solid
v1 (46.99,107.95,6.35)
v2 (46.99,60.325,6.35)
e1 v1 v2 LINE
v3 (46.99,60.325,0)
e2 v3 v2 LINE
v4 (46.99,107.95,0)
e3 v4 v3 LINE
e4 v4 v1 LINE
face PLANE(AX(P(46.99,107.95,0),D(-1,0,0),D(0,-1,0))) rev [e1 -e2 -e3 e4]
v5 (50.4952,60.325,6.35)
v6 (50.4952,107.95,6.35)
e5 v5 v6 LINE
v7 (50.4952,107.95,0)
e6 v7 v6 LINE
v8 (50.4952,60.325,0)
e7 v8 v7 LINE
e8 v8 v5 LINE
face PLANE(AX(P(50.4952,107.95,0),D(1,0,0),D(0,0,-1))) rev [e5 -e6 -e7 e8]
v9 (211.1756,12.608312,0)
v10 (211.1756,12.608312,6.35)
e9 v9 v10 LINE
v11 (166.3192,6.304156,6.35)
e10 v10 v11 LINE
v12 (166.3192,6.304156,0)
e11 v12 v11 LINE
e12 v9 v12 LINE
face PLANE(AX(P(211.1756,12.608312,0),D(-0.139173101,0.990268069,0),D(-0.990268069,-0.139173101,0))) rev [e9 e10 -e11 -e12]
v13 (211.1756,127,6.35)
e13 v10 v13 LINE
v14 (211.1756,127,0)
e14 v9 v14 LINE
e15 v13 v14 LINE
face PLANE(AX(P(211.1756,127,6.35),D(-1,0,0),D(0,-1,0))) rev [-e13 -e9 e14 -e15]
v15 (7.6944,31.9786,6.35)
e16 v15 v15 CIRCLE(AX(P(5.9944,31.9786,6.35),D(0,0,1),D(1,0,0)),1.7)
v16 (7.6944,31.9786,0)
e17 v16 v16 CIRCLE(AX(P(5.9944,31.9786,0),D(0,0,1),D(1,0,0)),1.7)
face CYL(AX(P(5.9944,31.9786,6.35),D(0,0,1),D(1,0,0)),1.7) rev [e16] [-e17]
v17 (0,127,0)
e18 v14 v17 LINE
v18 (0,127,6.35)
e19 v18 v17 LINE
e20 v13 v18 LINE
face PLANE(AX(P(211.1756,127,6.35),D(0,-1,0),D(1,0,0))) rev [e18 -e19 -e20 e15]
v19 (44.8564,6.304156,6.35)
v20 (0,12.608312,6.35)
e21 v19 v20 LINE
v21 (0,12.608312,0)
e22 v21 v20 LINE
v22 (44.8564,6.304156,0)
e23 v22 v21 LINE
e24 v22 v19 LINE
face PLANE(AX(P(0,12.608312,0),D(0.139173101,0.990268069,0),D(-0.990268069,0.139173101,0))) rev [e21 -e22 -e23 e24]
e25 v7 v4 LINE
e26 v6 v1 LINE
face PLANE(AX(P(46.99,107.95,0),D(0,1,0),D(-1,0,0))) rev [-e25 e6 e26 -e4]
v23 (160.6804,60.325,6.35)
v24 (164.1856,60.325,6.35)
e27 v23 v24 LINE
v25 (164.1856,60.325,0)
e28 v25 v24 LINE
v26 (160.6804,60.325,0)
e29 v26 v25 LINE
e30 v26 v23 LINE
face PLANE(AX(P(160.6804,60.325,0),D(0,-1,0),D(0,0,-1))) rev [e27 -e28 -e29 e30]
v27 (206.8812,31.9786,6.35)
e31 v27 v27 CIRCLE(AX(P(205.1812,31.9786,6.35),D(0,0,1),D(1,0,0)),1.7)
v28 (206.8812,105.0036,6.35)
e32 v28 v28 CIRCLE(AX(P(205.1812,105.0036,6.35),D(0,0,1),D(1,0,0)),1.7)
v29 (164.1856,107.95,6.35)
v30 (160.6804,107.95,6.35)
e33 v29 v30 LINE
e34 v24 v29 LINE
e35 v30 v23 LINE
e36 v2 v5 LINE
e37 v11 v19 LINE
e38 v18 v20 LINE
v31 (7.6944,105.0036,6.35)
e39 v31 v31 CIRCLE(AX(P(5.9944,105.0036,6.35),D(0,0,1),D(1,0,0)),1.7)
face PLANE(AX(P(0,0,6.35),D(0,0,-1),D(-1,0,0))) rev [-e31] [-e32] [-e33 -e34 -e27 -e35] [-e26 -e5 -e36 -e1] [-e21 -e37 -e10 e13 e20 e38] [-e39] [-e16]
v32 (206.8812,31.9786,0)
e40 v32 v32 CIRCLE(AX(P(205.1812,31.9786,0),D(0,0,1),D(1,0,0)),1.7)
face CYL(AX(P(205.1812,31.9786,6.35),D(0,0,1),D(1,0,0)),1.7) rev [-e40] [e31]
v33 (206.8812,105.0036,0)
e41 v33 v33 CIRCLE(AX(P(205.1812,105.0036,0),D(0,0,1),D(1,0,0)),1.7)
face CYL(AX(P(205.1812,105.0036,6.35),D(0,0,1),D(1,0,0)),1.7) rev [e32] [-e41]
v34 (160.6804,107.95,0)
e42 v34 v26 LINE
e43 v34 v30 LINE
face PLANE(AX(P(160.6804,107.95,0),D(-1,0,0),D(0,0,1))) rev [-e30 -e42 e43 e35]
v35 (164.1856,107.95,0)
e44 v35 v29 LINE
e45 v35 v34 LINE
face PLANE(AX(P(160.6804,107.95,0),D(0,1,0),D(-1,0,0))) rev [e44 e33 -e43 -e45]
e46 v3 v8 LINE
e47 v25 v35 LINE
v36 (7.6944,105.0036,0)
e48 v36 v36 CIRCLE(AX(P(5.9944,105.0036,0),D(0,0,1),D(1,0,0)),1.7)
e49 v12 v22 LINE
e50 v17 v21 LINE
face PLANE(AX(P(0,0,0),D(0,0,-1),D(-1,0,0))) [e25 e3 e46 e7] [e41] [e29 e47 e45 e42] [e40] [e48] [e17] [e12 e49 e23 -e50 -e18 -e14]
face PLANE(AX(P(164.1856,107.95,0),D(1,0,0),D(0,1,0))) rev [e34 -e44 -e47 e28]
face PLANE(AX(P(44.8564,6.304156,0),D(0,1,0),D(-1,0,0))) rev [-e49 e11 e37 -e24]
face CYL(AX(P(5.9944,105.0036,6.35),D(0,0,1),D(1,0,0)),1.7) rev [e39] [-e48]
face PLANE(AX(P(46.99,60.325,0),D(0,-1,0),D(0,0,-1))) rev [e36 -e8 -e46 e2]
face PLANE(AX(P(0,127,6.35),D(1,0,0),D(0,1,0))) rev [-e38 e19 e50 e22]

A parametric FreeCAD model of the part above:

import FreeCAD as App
import Part
import Sketcher
Q = App.Units.Quantity

doc = App.newDocument("Part")
params = doc.addObject("Spreadsheet::Sheet", "Params")
for row, (alias, value) in enumerate([
    ("sketch1_height", "5 in"),
    ("sketch1_width", "8.314 in"),
    ("pad1_length", "0.25 in"),
    ("hole_diameter", "3.4 mm"),
    ("sketch3_width", "0.138 in"),
    ("sketch3_height", "1.875 in"),
    ("sketch4_width", "3.532 in"),
    ("sketch5_height", "0.25 in"),
    ("sketch5_width", "4.782 in"),
], start=1):
    params.set(f"A{row}", alias)
    params.set(f"B{row}", "=" + value)
    params.setAlias(f"B{row}", alias)

body = doc.addObject("PartDesign::Body", "Body")

sketch1 = doc.addObject("Sketcher::SketchObject", "Sketch")
body.addObject(sketch1)
sketch1.AttachmentSupport = (doc.XY_Plane, [""])
sketch1.MapMode = "FlatFace"
sketch1.addGeometry([
    Part.LineSegment(App.Vector(0, 127, 0), App.Vector(0, 0, 0)),
    Part.LineSegment(App.Vector(0, 0, 0), App.Vector(211.1756, 0, 0)),
    Part.LineSegment(App.Vector(211.1756, 0, 0), App.Vector(211.1756, 127, 0)),
    Part.LineSegment(App.Vector(211.1756, 127, 0), App.Vector(0, 127, 0)),
], False)
sketch1.addConstraint([
    Sketcher.Constraint("Coincident", 0, 2, 1, 1),
    Sketcher.Constraint("Coincident", 1, 2, 2, 1),
    Sketcher.Constraint("Coincident", 2, 2, 3, 1),
    Sketcher.Constraint("Coincident", 3, 2, 0, 1),
    Sketcher.Constraint("Vertical", 0),
    Sketcher.Constraint("Horizontal", 1),
    Sketcher.Constraint("Vertical", 2),
    Sketcher.Constraint("Horizontal", 3),
    Sketcher.Constraint("Coincident", 0, 2, -1, 1),
    Sketcher.Constraint("DistanceY", 0, 2, 0, 1, Q("5 in")),
    Sketcher.Constraint("DistanceX", 1, 1, 1, 2, Q("8.314 in")),
])
sketch1.setExpression("Constraints[9]", "Params.sketch1_height")
sketch1.setExpression("Constraints[10]", "Params.sketch1_width")
pad1 = doc.addObject("PartDesign::Pad", "Pad")
body.addObject(pad1)
pad1.Profile = sketch1
pad1.setExpression("Length", "Params.pad1_length")

sketch2 = doc.addObject("Sketcher::SketchObject", "Sketch001")
body.addObject(sketch2)
sketch2.AttachmentSupport = (doc.XY_Plane, [""])
sketch2.MapMode = "FlatFace"
sketch2.AttachmentOffset = App.Placement(App.Vector(0, 0, 0.25 * 25.4), App.Rotation())
sketch2.addGeometry([
    Part.Circle(App.Vector(5.9944, 105.0036, 0), App.Vector(0, 0, 1), 1.7),
    Part.Circle(App.Vector(5.9944, 31.9786, 0), App.Vector(0, 0, 1), 1.7),
    Part.Circle(App.Vector(205.1812, 31.9786, 0), App.Vector(0, 0, 1), 1.7),
    Part.Circle(App.Vector(205.1812, 105.0036, 0), App.Vector(0, 0, 1), 1.7),
], False)
sketch2.addConstraint([
    Sketcher.Constraint("Equal", 0, 1),
    Sketcher.Constraint("Equal", 1, 2),
    Sketcher.Constraint("Equal", 2, 3),
    Sketcher.Constraint("Horizontal", 1, 3, 2, 3),
    Sketcher.Constraint("Horizontal", 0, 3, 3, 3),
    Sketcher.Constraint("Vertical", 0, 3, 1, 3),
    Sketcher.Constraint("Vertical", 2, 3, 3, 3),
    Sketcher.Constraint("Diameter", 0, Q("3.4 mm")),
    Sketcher.Constraint("DistanceX", -1, 1, 0, 3, Q("0.236 in")),
    Sketcher.Constraint("DistanceY", -1, 1, 0, 3, Q("4.134 in")),
    Sketcher.Constraint("DistanceY", -1, 1, 1, 3, Q("1.259 in")),
    Sketcher.Constraint("DistanceX", -1, 1, 2, 3, Q("8.078 in")),
])
doc.recompute()
hole = doc.addObject("PartDesign::Hole", "Hole")
body.addObject(hole)
hole.Profile = sketch2
hole.ThreadType = "None"
hole.setExpression("Diameter", "Params.hole_diameter")
hole.DepthType = "ThroughAll"

sketch3 = doc.addObject("Sketcher::SketchObject", "Sketch002")
body.addObject(sketch3)
sketch3.AttachmentSupport = (doc.XY_Plane, [""])
sketch3.MapMode = "FlatFace"
sketch3.AttachmentOffset = App.Placement(App.Vector(0, 0, 0.25 * 25.4), App.Rotation())
sketch3.addGeometry([
    Part.LineSegment(App.Vector(46.99, 107.95, 0), App.Vector(46.99, 60.325, 0)),
    Part.LineSegment(App.Vector(46.99, 60.325, 0), App.Vector(50.4952, 60.325, 0)),
    Part.LineSegment(App.Vector(50.4952, 60.325, 0), App.Vector(50.4952, 107.95, 0)),
    Part.LineSegment(App.Vector(50.4952, 107.95, 0), App.Vector(46.99, 107.95, 0)),
    Part.LineSegment(App.Vector(160.6804, 107.95, 0), App.Vector(160.6804, 60.325, 0)),
    Part.LineSegment(App.Vector(160.6804, 60.325, 0), App.Vector(164.1856, 60.325, 0)),
    Part.LineSegment(App.Vector(164.1856, 60.325, 0), App.Vector(164.1856, 107.95, 0)),
    Part.LineSegment(App.Vector(164.1856, 107.95, 0), App.Vector(160.6804, 107.95, 0)),
], False)
sketch3.addConstraint([
    Sketcher.Constraint("Coincident", 0, 2, 1, 1),
    Sketcher.Constraint("Coincident", 1, 2, 2, 1),
    Sketcher.Constraint("Coincident", 2, 2, 3, 1),
    Sketcher.Constraint("Coincident", 3, 2, 0, 1),
    Sketcher.Constraint("Coincident", 4, 2, 5, 1),
    Sketcher.Constraint("Coincident", 5, 2, 6, 1),
    Sketcher.Constraint("Coincident", 6, 2, 7, 1),
    Sketcher.Constraint("Coincident", 7, 2, 4, 1),
    Sketcher.Constraint("Vertical", 0),
    Sketcher.Constraint("Horizontal", 1),
    Sketcher.Constraint("Vertical", 2),
    Sketcher.Constraint("Horizontal", 3),
    Sketcher.Constraint("Vertical", 4),
    Sketcher.Constraint("Horizontal", 5),
    Sketcher.Constraint("Vertical", 6),
    Sketcher.Constraint("Horizontal", 7),
    Sketcher.Constraint("Horizontal", 1, 2, 4, 2),
    Sketcher.Constraint("Horizontal", 3, 2, 6, 2),
    Sketcher.Constraint("Equal", 3, 5),
    Sketcher.Constraint("DistanceX", 1, 1, 1, 2, Q("0.138 in")),
    Sketcher.Constraint("DistanceY", 0, 2, 0, 1, Q("1.875 in")),
    Sketcher.Constraint("DistanceX", -1, 1, 0, 2, Q("1.85 in")),
    Sketcher.Constraint("DistanceY", -1, 1, 2, 2, Q("4.25 in")),
    Sketcher.Constraint("DistanceX", -1, 1, 4, 2, Q("6.326 in")),
])
sketch3.setExpression("Constraints[19]", "Params.sketch3_width")
sketch3.setExpression("Constraints[20]", "Params.sketch3_height")
pocket1 = doc.addObject("PartDesign::Pocket", "Pocket")
body.addObject(pocket1)
pocket1.Profile = sketch3
pocket1.Type = "ThroughAll"

sketch4 = doc.addObject("Sketcher::SketchObject", "Sketch003")
body.addObject(sketch4)
sketch4.AttachmentSupport = (doc.XY_Plane, [""])
sketch4.MapMode = "FlatFace"
sketch4.AttachmentOffset = App.Placement(App.Vector(0, 0, 0.25 * 25.4), App.Rotation())
sketch4.addGeometry([
    Part.LineSegment(App.Vector(89.7128, 0, 0), App.Vector(0, 12.608312, 0)),
    Part.LineSegment(App.Vector(0, 12.608312, 0), App.Vector(0, 0, 0)),
    Part.LineSegment(App.Vector(0, 0, 0), App.Vector(89.7128, 0, 0)),
    Part.LineSegment(App.Vector(121.4628, 0, 0), App.Vector(211.1756, 0, 0)),
    Part.LineSegment(App.Vector(211.1756, 0, 0), App.Vector(211.1756, 12.608312, 0)),
    Part.LineSegment(App.Vector(211.1756, 12.608312, 0), App.Vector(121.4628, 0, 0)),
], False)
sketch4.addConstraint([
    Sketcher.Constraint("Coincident", 0, 2, 1, 1),
    Sketcher.Constraint("Coincident", 1, 2, 2, 1),
    Sketcher.Constraint("Coincident", 2, 2, 0, 1),
    Sketcher.Constraint("Coincident", 3, 2, 4, 1),
    Sketcher.Constraint("Coincident", 4, 2, 5, 1),
    Sketcher.Constraint("Coincident", 5, 2, 3, 1),
    Sketcher.Constraint("Vertical", 1),
    Sketcher.Constraint("Horizontal", 2),
    Sketcher.Constraint("Horizontal", 3),
    Sketcher.Constraint("Vertical", 4),
    Sketcher.Constraint("Coincident", 1, 2, -1, 1),
    Sketcher.Constraint("PointOnObject", 3, 2, -1),
    Sketcher.Constraint("Horizontal", 0, 2, 4, 2),
    Sketcher.Constraint("Equal", 2, 3),
    Sketcher.Constraint("Angle", 0, Q("172 deg")),
    Sketcher.Constraint("DistanceX", 2, 1, 2, 2, Q("3.532 in")),
    Sketcher.Constraint("DistanceX", 2, 2, 5, 2, Q("1.25 in")),
])
sketch4.setExpression("Constraints[15]", "Params.sketch4_width")
pocket2 = doc.addObject("PartDesign::Pocket", "Pocket001")
body.addObject(pocket2)
pocket2.Profile = sketch4
pocket2.Type = "ThroughAll"

sketch5 = doc.addObject("Sketcher::SketchObject", "Sketch004")
body.addObject(sketch5)
sketch5.AttachmentSupport = (doc.XY_Plane, [""])
sketch5.MapMode = "FlatFace"
sketch5.AttachmentOffset = App.Placement(App.Vector(0, 0, 0.25 * 25.4), App.Rotation())
sketch5.addGeometry([
    Part.LineSegment(App.Vector(44.8564, 6.304156, 0), App.Vector(44.8564, -0.045844, 0)),
    Part.LineSegment(App.Vector(44.8564, -0.045844, 0), App.Vector(166.3192, -0.045844, 0)),
    Part.LineSegment(App.Vector(166.3192, -0.045844, 0), App.Vector(166.3192, 6.304156, 0)),
    Part.LineSegment(App.Vector(166.3192, 6.304156, 0), App.Vector(44.8564, 6.304156, 0)),
], False)
sketch5.addConstraint([
    Sketcher.Constraint("Coincident", 0, 2, 1, 1),
    Sketcher.Constraint("Coincident", 1, 2, 2, 1),
    Sketcher.Constraint("Coincident", 2, 2, 3, 1),
    Sketcher.Constraint("Coincident", 3, 2, 0, 1),
    Sketcher.Constraint("Vertical", 0),
    Sketcher.Constraint("Horizontal", 1),
    Sketcher.Constraint("Vertical", 2),
    Sketcher.Constraint("Horizontal", 3),
    Sketcher.Constraint("DistanceY", 0, 2, 0, 1, Q("0.25 in")),
    Sketcher.Constraint("DistanceX", 1, 1, 1, 2, Q("4.782 in")),
    Sketcher.Constraint("DistanceX", -1, 1, 0, 2, Q("1.766 in")),
    Sketcher.Constraint("DistanceY", 0, 2, -1, 1, Q("0.045844 mm")),
])
sketch5.setExpression("Constraints[8]", "Params.sketch5_height")
sketch5.setExpression("Constraints[9]", "Params.sketch5_width")
pocket3 = doc.addObject("PartDesign::Pocket", "Pocket002")
body.addObject(pocket3)
pocket3.Profile = sketch5
pocket3.Type = "ThroughAll"

doc.recompute()
